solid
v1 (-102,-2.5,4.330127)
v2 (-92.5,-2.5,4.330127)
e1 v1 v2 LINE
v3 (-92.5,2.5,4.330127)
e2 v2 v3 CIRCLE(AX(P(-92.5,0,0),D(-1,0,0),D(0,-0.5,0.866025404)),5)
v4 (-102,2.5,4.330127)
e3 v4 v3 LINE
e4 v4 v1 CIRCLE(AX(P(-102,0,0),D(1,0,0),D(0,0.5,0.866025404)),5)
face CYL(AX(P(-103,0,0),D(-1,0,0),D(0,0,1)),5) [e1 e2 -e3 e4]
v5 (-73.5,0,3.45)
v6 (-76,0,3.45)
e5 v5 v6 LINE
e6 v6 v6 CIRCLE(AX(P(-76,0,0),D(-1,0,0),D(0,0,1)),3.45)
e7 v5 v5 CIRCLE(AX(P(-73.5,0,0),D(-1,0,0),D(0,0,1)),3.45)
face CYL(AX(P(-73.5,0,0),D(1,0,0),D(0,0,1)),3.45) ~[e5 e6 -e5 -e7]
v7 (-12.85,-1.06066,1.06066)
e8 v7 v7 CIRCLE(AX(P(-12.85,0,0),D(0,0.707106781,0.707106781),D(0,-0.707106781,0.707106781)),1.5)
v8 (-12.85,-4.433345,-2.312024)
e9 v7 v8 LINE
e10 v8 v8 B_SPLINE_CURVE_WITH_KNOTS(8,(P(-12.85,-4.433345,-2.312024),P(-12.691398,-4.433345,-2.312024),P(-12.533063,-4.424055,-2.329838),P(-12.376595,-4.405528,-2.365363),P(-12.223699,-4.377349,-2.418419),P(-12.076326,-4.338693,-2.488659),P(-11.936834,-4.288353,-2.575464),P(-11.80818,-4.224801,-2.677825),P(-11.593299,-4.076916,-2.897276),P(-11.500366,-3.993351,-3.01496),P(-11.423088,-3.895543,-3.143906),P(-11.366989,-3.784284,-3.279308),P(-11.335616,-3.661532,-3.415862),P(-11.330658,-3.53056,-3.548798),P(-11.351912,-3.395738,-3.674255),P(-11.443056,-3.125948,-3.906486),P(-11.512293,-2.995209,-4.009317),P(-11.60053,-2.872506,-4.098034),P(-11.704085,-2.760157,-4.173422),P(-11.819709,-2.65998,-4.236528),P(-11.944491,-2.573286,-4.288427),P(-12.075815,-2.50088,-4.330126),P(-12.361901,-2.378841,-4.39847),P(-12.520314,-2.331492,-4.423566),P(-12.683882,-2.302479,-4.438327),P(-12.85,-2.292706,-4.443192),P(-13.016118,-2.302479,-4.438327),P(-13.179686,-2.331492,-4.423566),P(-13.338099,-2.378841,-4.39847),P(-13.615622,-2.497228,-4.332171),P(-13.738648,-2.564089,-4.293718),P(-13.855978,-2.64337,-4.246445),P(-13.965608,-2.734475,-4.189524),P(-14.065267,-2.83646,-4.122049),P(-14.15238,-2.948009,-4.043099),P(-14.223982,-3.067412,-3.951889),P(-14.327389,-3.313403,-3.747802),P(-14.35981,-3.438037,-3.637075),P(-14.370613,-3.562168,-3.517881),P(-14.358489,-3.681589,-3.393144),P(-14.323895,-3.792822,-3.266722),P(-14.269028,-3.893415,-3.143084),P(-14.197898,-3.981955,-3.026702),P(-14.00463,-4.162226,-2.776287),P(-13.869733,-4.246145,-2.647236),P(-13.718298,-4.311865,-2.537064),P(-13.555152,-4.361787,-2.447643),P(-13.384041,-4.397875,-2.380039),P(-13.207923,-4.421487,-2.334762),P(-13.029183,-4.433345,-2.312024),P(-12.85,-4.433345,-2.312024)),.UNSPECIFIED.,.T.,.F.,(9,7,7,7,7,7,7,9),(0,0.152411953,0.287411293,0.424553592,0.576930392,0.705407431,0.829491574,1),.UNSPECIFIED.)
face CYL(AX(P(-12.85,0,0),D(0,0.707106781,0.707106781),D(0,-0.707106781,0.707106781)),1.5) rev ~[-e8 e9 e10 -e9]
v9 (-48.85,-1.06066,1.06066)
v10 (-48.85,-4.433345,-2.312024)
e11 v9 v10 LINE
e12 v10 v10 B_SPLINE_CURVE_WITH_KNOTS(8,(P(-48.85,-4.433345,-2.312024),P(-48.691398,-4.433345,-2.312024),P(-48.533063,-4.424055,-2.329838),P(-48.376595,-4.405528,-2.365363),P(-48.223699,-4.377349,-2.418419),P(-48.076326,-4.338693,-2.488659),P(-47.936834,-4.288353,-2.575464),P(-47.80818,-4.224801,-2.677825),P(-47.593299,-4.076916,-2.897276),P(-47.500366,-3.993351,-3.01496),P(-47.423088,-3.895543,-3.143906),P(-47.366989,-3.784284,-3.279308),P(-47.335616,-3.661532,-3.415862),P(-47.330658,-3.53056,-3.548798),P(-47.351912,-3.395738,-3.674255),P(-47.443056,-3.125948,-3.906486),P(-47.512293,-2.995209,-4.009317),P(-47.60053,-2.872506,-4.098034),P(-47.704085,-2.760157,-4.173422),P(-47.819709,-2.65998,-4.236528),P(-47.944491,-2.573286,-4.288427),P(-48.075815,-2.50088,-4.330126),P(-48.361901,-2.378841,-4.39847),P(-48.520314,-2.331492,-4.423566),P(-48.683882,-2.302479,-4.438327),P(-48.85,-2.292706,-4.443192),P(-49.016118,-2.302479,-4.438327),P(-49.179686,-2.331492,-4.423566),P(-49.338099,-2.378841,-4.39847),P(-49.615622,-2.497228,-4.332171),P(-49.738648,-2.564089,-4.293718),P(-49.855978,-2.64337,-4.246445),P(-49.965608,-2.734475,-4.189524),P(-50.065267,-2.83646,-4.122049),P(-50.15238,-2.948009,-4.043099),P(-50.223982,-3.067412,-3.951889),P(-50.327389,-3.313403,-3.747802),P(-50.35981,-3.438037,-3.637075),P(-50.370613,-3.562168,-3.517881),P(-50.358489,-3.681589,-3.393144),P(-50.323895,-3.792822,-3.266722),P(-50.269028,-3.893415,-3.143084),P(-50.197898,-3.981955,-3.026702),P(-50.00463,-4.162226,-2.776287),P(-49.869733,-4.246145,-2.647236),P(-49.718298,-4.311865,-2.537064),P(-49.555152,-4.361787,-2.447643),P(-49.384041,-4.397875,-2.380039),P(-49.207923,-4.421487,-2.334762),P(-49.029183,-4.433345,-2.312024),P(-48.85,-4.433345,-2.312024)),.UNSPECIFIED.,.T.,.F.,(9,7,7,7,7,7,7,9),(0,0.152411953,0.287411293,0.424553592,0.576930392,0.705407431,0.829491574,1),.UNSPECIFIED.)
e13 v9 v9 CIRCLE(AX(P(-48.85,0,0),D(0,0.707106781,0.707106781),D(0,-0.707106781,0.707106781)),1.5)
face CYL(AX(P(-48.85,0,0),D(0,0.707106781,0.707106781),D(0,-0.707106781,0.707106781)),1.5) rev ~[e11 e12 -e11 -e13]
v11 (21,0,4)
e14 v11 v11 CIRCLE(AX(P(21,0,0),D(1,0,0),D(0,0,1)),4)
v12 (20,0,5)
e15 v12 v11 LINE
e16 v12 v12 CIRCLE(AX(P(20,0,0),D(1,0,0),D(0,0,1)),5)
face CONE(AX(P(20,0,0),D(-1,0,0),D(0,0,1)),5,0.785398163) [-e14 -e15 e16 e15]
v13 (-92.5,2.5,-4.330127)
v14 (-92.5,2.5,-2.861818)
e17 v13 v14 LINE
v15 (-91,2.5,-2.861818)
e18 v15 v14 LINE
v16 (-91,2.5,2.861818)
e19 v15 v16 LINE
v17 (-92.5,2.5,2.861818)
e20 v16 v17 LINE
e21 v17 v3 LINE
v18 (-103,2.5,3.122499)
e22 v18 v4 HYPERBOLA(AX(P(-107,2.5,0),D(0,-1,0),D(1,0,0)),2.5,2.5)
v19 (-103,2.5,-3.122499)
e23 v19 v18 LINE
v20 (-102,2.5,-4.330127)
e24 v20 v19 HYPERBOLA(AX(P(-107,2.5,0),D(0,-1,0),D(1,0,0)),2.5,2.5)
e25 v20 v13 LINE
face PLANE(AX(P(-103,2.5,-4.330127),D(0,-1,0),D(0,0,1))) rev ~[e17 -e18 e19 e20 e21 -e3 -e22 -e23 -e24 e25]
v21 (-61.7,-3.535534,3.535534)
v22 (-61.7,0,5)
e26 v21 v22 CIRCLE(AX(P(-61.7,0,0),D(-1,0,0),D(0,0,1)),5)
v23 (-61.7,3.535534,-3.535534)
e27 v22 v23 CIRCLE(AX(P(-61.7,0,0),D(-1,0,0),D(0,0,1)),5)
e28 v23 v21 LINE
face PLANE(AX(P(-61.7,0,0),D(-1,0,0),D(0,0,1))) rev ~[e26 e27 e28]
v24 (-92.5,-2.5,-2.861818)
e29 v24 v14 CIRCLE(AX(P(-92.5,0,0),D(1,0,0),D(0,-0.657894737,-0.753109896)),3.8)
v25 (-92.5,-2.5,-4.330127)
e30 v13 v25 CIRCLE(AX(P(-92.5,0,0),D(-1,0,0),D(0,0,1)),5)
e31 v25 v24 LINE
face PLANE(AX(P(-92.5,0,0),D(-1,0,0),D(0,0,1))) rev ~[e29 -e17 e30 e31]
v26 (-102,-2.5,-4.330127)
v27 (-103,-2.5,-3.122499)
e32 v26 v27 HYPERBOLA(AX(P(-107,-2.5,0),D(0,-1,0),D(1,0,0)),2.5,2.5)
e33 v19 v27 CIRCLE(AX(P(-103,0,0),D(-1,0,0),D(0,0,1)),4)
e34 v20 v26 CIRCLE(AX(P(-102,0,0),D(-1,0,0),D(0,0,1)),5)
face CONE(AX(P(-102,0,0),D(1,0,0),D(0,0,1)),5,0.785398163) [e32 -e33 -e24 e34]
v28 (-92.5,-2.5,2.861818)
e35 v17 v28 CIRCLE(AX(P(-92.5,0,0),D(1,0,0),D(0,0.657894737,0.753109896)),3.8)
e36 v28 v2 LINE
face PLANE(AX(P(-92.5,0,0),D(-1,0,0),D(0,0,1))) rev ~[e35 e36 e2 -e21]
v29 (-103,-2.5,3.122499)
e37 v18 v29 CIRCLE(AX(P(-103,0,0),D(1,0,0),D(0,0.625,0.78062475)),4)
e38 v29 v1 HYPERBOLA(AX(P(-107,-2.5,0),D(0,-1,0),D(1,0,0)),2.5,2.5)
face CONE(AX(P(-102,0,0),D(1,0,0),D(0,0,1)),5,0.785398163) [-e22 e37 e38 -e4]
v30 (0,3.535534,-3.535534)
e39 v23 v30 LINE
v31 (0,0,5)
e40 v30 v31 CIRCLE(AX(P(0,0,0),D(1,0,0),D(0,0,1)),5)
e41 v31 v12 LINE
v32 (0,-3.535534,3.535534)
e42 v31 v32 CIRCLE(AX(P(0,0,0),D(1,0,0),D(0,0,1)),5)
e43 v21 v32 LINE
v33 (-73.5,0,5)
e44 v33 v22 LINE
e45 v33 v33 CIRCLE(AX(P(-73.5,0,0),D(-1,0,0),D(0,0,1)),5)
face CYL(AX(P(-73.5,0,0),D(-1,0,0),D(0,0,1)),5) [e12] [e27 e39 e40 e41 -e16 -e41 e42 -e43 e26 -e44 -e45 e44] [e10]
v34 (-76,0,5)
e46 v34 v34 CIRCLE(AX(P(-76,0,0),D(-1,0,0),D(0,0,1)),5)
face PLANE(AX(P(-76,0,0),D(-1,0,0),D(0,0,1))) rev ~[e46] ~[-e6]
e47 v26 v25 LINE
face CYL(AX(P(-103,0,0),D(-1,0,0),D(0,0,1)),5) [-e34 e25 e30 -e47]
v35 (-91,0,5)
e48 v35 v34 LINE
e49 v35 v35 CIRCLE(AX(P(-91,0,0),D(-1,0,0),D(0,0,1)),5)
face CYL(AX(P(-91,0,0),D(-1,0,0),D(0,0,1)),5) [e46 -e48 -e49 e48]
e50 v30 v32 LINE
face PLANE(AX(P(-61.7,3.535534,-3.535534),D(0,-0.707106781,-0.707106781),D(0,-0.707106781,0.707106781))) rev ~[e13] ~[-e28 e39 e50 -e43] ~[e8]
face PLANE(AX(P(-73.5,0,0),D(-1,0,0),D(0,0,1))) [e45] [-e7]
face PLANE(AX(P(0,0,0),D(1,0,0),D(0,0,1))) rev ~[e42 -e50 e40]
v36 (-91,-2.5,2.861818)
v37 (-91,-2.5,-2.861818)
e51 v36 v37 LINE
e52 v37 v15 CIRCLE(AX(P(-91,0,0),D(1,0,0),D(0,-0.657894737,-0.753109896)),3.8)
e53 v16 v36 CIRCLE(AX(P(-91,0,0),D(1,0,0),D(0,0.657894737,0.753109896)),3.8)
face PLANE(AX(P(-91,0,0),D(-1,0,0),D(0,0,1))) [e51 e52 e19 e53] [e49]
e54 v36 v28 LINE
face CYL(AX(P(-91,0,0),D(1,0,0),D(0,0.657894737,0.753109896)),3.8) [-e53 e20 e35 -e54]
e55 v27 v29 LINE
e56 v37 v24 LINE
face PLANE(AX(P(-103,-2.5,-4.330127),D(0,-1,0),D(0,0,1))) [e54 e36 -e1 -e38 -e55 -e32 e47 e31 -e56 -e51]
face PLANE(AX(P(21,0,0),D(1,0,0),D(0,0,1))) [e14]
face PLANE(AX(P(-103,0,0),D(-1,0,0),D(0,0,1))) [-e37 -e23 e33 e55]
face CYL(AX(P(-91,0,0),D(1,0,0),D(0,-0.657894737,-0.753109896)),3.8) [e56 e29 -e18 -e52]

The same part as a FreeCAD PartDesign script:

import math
import FreeCAD as App
import Part
import Sketcher
from FreeCAD import Vector
Q = App.Units.Quantity


def edges_at(feature, points):
    """Names of the edges that pass closest to the given points."""
    edges = feature.Shape.Edges
    near = lambda p: min(range(len(edges)), key=lambda i: edges[i].distToShape(Part.Vertex(*p))[0])
    return sorted({f"Edge{near(p) + 1}" for p in points})

doc = App.newDocument("Part")
body = doc.addObject("PartDesign::Body", "Body")

# Sketch on YZ plane
sketch1 = body.newObject("Sketcher::SketchObject", "Sketch")
sketch1.AttachmentSupport = (doc.getObject("YZ_Plane"), [""])
sketch1.MapMode = "FlatFace"
sketch1.addGeometry(Part.Circle(Vector(0, 0, 0), Vector(0, 0, 1), 5), False)
sketch1.addConstraint(Sketcher.Constraint("Coincident", 0, 3, -1, 1))
sketch1.addConstraint(Sketcher.Constraint("Diameter", 0, 10.0))
pad1 = body.newObject("PartDesign::Pad", "Pad")
pad1.Profile = sketch1
pad1.Length = 21
doc.recompute()

chamfer = body.newObject("PartDesign::Chamfer", "Chamfer")
chamfer.Base = (pad1, edges_at(pad1, [(21, 0, -5)]))
chamfer.Size = 1

# Sketch on YZ plane
sketch2 = body.newObject("Sketcher::SketchObject", "Sketch001")
sketch2.AttachmentSupport = (doc.getObject("YZ_Plane"), [""])
sketch2.MapMode = "FlatFace"
sketch2.AttachmentOffset = App.Placement(Vector(0, 0, -61.7), App.Rotation())
sketch2.addGeometry(Part.LineSegment(Vector(-4, 4, 0), Vector(4, -4, 0)), False)
sketch2.addGeometry(Part.ArcOfCircle(Part.Circle(Vector(0, 0, 0), Vector(0, 0, 1), 5), math.radians(135), math.radians(315)), False)
sketch2.addConstraint(Sketcher.Constraint("Coincident", 0, 1, 1, 1))
sketch2.addConstraint(Sketcher.Constraint("Coincident", 1, 2, 0, 2))
sketch2.addConstraint(Sketcher.Constraint("Coincident", 1, 3, -1, 1))
sketch2.addConstraint(Sketcher.Constraint("Radius", 1, 5.0))
sketch2.addConstraint(Sketcher.Constraint("Angle", 0, Q("-45 deg")))
sketch2.addConstraint(Sketcher.Constraint("DistanceX", 0, 1, -1, 1, 3.535534))
pad2 = body.newObject("PartDesign::Pad", "Pad001")
pad2.Profile = sketch2
pad2.Length = 61.7

# Sketch on YZ plane
sketch3 = body.newObject("Sketcher::SketchObject", "Sketch002")
sketch3.AttachmentSupport = (doc.getObject("YZ_Plane"), [""])
sketch3.MapMode = "FlatFace"
sketch3.AttachmentOffset = App.Placement(Vector(0, 0, -73.5), App.Rotation())
sketch3.addGeometry(Part.Circle(Vector(0, 0, 0), Vector(0, 0, 1), 5), False)
sketch3.addConstraint(Sketcher.Constraint("Coincident", 0, 3, -1, 1))
sketch3.addConstraint(Sketcher.Constraint("Diameter", 0, 10.0))
pad3 = body.newObject("PartDesign::Pad", "Pad002")
pad3.Profile = sketch3
pad3.Length = 11.8

# Sketch on YZ plane
sketch4 = body.newObject("Sketcher::SketchObject", "Sketch003")
sketch4.AttachmentSupport = (doc.getObject("YZ_Plane"), [""])
sketch4.MapMode = "FlatFace"
sketch4.AttachmentOffset = App.Placement(Vector(0, 0, -73.5), App.Rotation())
sketch4.addGeometry(Part.Circle(Vector(0, 0, 0), Vector(0, 0, 1), 3.5), False)
sketch4.addConstraint(Sketcher.Constraint("Coincident", 0, 3, -1, 1))
sketch4.addConstraint(Sketcher.Constraint("Diameter", 0, 6.9))
pad4 = body.newObject("PartDesign::Pad", "Pad003")
pad4.Profile = sketch4
pad4.Length = 2.5
pad4.Reversed = True

# Sketch on YZ plane
sketch5 = body.newObject("Sketcher::SketchObject", "Sketch004")
sketch5.AttachmentSupport = (doc.getObject("YZ_Plane"), [""])
sketch5.MapMode = "FlatFace"
sketch5.AttachmentOffset = App.Placement(Vector(0, 0, -91), App.Rotation())
sketch5.addGeometry(Part.Circle(Vector(0, 0, 0), Vector(0, 0, 1), 5), False)
sketch5.addConstraint(Sketcher.Constraint("Coincident", 0, 3, -1, 1))
sketch5.addConstraint(Sketcher.Constraint("Diameter", 0, 10.0))
pad5 = body.newObject("PartDesign::Pad", "Pad004")
pad5.Profile = sketch5
pad5.Length = 15

# Sketch on YZ plane
sketch6 = body.newObject("Sketcher::SketchObject", "Sketch005")
sketch6.AttachmentSupport = (doc.getObject("YZ_Plane"), [""])
sketch6.MapMode = "FlatFace"
sketch6.AttachmentOffset = App.Placement(Vector(0, 0, -91), App.Rotation())
sketch6.addGeometry(Part.LineSegment(Vector(2.5, 2.9, 0), Vector(2.5, -2.9, 0)), False)
sketch6.addGeometry(Part.ArcOfCircle(Part.Circle(Vector(0, 0, 0), Vector(0, 0, 1), 3.8), math.radians(-131), math.radians(-49)), False)
sketch6.addGeometry(Part.LineSegment(Vector(-2.5, -2.9, 0), Vector(-2.5, 2.9, 0)), False)
sketch6.addGeometry(Part.ArcOfCircle(Part.Circle(Vector(0, 0, 0), Vector(0, 0, 1), 3.8), math.radians(49), math.radians(131)), False)
sketch6.addConstraint(Sketcher.Constraint("Coincident", 0, 2, 1, 2))
sketch6.addConstraint(Sketcher.Constraint("Coincident", 1, 1, 2, 1))
sketch6.addConstraint(Sketcher.Constraint("Coincident", 2, 2, 3, 2))
sketch6.addConstraint(Sketcher.Constraint("Coincident", 3, 1, 0, 1))
sketch6.addConstraint(Sketcher.Constraint("Vertical", 0))
sketch6.addConstraint(Sketcher.Constraint("Vertical", 2))
sketch6.addConstraint(Sketcher.Constraint("Coincident", 1, 3, -1, 1))
sketch6.addConstraint(Sketcher.Constraint("Coincident", 3, 3, -1, 1))
sketch6.addConstraint(Sketcher.Constraint("Equal", 1, 3))
sketch6.addConstraint(Sketcher.Constraint("Horizontal", 0, 2, 1, 1))
sketch6.addConstraint(Sketcher.Constraint("Radius", 1, 3.8))
sketch6.addConstraint(Sketcher.Constraint("DistanceX", 1, 1, 0, 2, 5.0))
pad6 = body.newObject("PartDesign::Pad", "Pad005")
pad6.Profile = sketch6
pad6.Length = 1.5
pad6.Reversed = True

# Sketch on YZ plane
sketch7 = body.newObject("Sketcher::SketchObject", "Sketch006")
sketch7.AttachmentSupport = (doc.getObject("YZ_Plane"), [""])
sketch7.MapMode = "FlatFace"
sketch7.AttachmentOffset = App.Placement(Vector(0, 0, -103), App.Rotation())
sketch7.addGeometry(Part.Circle(Vector(0, 0, 0), Vector(0, 0, 1), 5), False)
sketch7.addConstraint(Sketcher.Constraint("Coincident", 0, 3, -1, 1))
sketch7.addConstraint(Sketcher.Constraint("Diameter", 0, 10.0))
pad7 = body.newObject("PartDesign::Pad", "Pad006")
pad7.Profile = sketch7
pad7.Length = 10.5
doc.recompute()

chamfer2 = body.newObject("PartDesign::Chamfer", "Chamfer001")
chamfer2.Base = (pad7, edges_at(pad7, [(-103, 0, -5)]))
chamfer2.Size = 1

# Sketch on YZ plane
sketch8 = body.newObject("Sketcher::SketchObject", "Sketch007")
sketch8.AttachmentSupport = (doc.getObject("YZ_Plane"), [""])
sketch8.MapMode = "FlatFace"
sketch8.AttachmentOffset = App.Placement(Vector(0, 0, -103), App.Rotation())
sketch8.addGeometry(Part.LineSegment(Vector(2, -4, 0), Vector(2, 4, 0)), False)
sketch8.addGeometry(Part.ArcOfCircle(Part.Circle(Vector(0, 0, 0), Vector(0, 0, 1), 5), math.radians(-60), math.radians(60)), False)
sketch8.addGeometry(Part.LineSegment(Vector(-2, 4, 0), Vector(-2, -4, 0)), False)
sketch8.addGeometry(Part.ArcOfCircle(Part.Circle(Vector(0, 0, 0), Vector(0, 0, 1), 5), math.radians(120), math.radians(240)), False)
sketch8.addConstraint(Sketcher.Constraint("Coincident", 0, 1, 1, 1))
sketch8.addConstraint(Sketcher.Constraint("Coincident", 1, 2, 0, 2))
sketch8.addConstraint(Sketcher.Constraint("Coincident", 2, 1, 3, 1))
sketch8.addConstraint(Sketcher.Constraint("Coincident", 3, 2, 2, 2))
sketch8.addConstraint(Sketcher.Constraint("Vertical", 0))
sketch8.addConstraint(Sketcher.Constraint("Vertical", 2))
sketch8.addConstraint(Sketcher.Constraint("Coincident", 1, 3, -1, 1))
sketch8.addConstraint(Sketcher.Constraint("Coincident", 3, 3, -1, 1))
sketch8.addConstraint(Sketcher.Constraint("Equal", 1, 3))
sketch8.addConstraint(Sketcher.Constraint("Horizontal", 1, 2, 2, 1))
sketch8.addConstraint(Sketcher.Constraint("Radius", 1, 5.0))
sketch8.addConstraint(Sketcher.Constraint("DistanceX", 2, 1, 1, 2, 5.0))
pocket1 = body.newObject("PartDesign::Pocket", "Pocket")
pocket1.Profile = sketch8
pocket1.Length = 10.5
pocket1.Reversed = True

# Sketch on an angled plane
sketch9 = body.newObject("Sketcher::SketchObject", "Sketch008")
sketch9.Placement = App.Placement(Vector(0, 0, 0), App.Rotation(Vector(1, 0, 0), Vector(0, 0.707106781, -0.707106781), Vector(0, 0.707106781, 0.707106781), "ZXY"))
sketch9.addGeometry(Part.Circle(Vector(-12.8, 0, 0), Vector(0, 0, 1), 1.5), False)
sketch9.addGeometry(Part.Circle(Vector(-48.9, 0, 0), Vector(0, 0, 1), 1.5), False)
sketch9.addConstraint(Sketcher.Constraint("Equal", 0, 1))
sketch9.addConstraint(Sketcher.Constraint("PointOnObject", 0, 3, -1))
sketch9.addConstraint(Sketcher.Constraint("PointOnObject", 1, 3, -1))
sketch9.addConstraint(Sketcher.Constraint("Diameter", 0, 3.0))
sketch9.addConstraint(Sketcher.Constraint("DistanceX", 1, 3, 0, 3, 36.0))
sketch9.addConstraint(Sketcher.Constraint("DistanceX", 0, 3, -1, 1, 12.85))
pocket2 = body.newObject("PartDesign::Pocket", "Pocket001")
pocket2.Profile = sketch9
pocket2.Length = 10.5

doc.recompute()
